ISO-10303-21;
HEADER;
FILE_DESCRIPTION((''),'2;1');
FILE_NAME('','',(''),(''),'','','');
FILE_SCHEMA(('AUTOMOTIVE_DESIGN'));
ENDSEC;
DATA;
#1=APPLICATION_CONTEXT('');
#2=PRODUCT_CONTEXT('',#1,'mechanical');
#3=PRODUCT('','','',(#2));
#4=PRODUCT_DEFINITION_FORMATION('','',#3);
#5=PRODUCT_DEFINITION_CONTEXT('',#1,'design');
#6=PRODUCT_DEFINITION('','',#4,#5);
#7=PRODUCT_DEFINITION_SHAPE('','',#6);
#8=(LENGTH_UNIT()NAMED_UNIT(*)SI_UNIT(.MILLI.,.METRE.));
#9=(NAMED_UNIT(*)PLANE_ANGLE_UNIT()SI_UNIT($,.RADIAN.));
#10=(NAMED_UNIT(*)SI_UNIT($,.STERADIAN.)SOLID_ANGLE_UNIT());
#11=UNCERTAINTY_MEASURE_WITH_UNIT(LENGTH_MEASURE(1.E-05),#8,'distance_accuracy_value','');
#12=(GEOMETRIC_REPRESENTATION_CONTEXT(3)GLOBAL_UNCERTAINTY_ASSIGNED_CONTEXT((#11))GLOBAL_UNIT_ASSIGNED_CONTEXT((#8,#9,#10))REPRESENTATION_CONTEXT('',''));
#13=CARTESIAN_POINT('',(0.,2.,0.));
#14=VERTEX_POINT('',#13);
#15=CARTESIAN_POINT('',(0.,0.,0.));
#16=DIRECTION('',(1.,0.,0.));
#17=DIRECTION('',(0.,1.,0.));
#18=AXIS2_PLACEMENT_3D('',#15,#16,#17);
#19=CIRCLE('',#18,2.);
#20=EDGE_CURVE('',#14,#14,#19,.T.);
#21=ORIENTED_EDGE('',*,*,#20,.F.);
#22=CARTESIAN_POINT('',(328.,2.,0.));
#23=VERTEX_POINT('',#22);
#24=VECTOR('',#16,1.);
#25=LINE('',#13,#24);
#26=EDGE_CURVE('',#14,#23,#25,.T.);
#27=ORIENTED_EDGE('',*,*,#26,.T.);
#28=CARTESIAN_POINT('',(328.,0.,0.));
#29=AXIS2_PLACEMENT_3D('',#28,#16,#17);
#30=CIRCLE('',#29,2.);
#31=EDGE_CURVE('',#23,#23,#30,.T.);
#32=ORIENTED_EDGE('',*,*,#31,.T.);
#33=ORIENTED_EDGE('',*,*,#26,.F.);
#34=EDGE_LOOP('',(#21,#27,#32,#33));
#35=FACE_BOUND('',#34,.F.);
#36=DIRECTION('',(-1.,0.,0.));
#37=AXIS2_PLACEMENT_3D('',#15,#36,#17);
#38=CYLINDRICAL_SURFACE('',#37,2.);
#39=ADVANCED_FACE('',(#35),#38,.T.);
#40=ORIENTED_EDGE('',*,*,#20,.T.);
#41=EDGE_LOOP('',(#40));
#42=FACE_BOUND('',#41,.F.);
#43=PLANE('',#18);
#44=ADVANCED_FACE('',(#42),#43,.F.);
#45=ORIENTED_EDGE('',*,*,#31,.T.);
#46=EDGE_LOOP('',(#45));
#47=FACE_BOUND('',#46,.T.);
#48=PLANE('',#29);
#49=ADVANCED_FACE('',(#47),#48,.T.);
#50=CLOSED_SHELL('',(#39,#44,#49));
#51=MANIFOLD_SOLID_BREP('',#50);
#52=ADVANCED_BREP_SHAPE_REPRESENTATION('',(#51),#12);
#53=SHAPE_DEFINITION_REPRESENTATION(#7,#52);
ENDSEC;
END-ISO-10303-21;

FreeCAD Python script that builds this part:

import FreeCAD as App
import Part
import Sketcher

doc = App.newDocument("Part")
body = doc.addObject("PartDesign::Body", "Body")

sketch1 = body.newObject("Sketcher::SketchObject", "Sketch")
sketch1.AttachmentSupport = (doc.getObject("YZ_Plane"), [""])
sketch1.MapMode = "FlatFace"
sketch1.addGeometry(Part.Circle(App.Vector(0, 0, 0), App.Vector(0, 0, 1), 2), False)
sketch1.addConstraint([
    Sketcher.Constraint("Coincident", 0, 3, -1, 1),
    Sketcher.Constraint("Diameter", 0, 4.0),
])
pad1 = body.newObject("PartDesign::Pad", "Pad")
pad1.Profile = sketch1
pad1.Length = 328

doc.recompute()
